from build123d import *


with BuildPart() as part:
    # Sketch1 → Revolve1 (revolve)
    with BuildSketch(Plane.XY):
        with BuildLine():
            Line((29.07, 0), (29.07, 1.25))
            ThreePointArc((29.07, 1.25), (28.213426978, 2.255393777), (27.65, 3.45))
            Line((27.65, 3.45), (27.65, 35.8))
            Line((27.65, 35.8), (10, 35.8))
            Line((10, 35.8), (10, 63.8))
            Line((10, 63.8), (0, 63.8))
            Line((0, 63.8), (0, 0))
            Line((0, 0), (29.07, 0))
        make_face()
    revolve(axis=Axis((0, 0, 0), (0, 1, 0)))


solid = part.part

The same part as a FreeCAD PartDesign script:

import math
import FreeCAD as App
import Part
import Sketcher

doc = App.newDocument("Part")
body = doc.addObject("PartDesign::Body", "Body")

# Sketch on XY plane
sketch1 = doc.addObject("Sketcher::SketchObject", "Sketch")
body.addObject(sketch1)
sketch1.AttachmentSupport = (doc.XY_Plane, [""])
sketch1.MapMode = "FlatFace"
sketch1.addGeometry([
    Part.LineSegment(App.Vector(29.07, 0, 0), App.Vector(29.07, 1.25, 0)),  # 0
    Part.ArcOfCircle(Part.Circle(App.Vector(32.414349, 4.966898, 0), App.Vector(0, 0, 1), 5), math.radians(-162.339297), math.radians(-131.979894)),  # 1
    Part.LineSegment(App.Vector(27.65, 3.45, 0), App.Vector(27.65, 35.8, 0)),  # 2
    Part.LineSegment(App.Vector(27.65, 35.8, 0), App.Vector(10, 35.8, 0)),  # 3
    Part.LineSegment(App.Vector(10, 35.8, 0), App.Vector(10, 63.8, 0)),  # 4
    Part.LineSegment(App.Vector(10, 63.8, 0), App.Vector(0, 63.8, 0)),  # 5
    Part.LineSegment(App.Vector(0, 63.8, 0), App.Vector(0, 0, 0)),  # 6
    Part.LineSegment(App.Vector(0, 0, 0), App.Vector(29.07, 0, 0)),  # 7
], False)
sketch1.addConstraint([
    Sketcher.Constraint("Coincident", 0, 2, 1, 2),
    Sketcher.Constraint("Coincident", 1, 1, 2, 1),
    Sketcher.Constraint("Coincident", 2, 2, 3, 1),
    Sketcher.Constraint("Coincident", 3, 2, 4, 1),
    Sketcher.Constraint("Coincident", 4, 2, 5, 1),
    Sketcher.Constraint("Coincident", 5, 2, 6, 1),
    Sketcher.Constraint("Coincident", 6, 2, 7, 1),
    Sketcher.Constraint("Coincident", 7, 2, 0, 1),
    Sketcher.Constraint("Vertical", 0),
    Sketcher.Constraint("Vertical", 2),
    Sketcher.Constraint("Horizontal", 3),
    Sketcher.Constraint("Vertical", 4),
    Sketcher.Constraint("Horizontal", 5),
    Sketcher.Constraint("Vertical", 6),
    Sketcher.Constraint("Horizontal", 7),
    Sketcher.Constraint("Coincident", 6, 2, -1, 1),
    Sketcher.Constraint("Radius", 1, 5.0),
    Sketcher.Constraint("DistanceX", 5, 2, 5, 1, 10.0),
    Sketcher.Constraint("DistanceY", 4, 1, 4, 2, 28.0),
    Sketcher.Constraint("DistanceY", 6, 2, 6, 1, 63.8),
    Sketcher.Constraint("DistanceX", 3, 2, 3, 1, 17.65),
    Sketcher.Constraint("DistanceX", 7, 1, 7, 2, 29.07),
    Sketcher.Constraint("DistanceY", 0, 1, 0, 2, 1.25),
    Sketcher.Constraint("DistanceY", 2, 1, 2, 2, 32.35),
])
revolution = doc.addObject("PartDesign::Revolution", "Revolution")
body.addObject(revolution)
revolution.Profile = sketch1
revolution.ReferenceAxis = (sketch1, ["V_Axis"])
revolution.Angle = 360

doc.recompute()
